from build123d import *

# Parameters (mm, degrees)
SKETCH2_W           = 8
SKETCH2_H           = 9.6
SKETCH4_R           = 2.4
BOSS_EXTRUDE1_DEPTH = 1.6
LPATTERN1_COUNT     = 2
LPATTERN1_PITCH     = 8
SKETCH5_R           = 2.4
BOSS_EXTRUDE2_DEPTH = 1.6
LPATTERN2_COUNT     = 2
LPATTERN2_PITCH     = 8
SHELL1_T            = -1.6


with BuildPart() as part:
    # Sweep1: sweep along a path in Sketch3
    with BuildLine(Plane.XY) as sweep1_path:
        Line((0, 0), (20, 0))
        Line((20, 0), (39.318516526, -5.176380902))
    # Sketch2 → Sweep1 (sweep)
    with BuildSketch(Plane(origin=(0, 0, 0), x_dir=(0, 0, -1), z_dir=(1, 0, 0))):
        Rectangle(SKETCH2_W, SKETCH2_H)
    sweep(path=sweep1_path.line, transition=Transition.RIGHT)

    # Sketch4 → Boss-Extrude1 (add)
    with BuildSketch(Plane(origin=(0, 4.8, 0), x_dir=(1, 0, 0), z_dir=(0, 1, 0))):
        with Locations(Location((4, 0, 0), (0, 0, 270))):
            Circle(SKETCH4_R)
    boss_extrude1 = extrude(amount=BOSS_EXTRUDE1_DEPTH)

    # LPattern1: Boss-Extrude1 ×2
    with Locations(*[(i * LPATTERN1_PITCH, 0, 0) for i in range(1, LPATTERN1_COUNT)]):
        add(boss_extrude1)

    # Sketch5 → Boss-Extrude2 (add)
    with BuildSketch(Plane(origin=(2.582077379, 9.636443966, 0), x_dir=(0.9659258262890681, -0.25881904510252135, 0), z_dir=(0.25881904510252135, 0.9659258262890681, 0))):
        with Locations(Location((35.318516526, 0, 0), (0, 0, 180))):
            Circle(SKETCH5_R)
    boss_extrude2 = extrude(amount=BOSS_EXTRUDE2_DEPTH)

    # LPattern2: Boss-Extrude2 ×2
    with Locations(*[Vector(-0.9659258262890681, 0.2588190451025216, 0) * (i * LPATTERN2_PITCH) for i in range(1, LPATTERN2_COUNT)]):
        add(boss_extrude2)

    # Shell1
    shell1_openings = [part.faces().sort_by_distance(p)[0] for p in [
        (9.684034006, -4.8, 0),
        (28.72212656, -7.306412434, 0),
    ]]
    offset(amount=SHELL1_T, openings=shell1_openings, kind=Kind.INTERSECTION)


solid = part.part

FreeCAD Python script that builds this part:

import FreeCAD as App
import Part
import Sketcher
Q = App.Units.Quantity


def faces_at(feature, points):
    """Names of the faces that lie closest to the given points."""
    faces = feature.Shape.Faces
    near = lambda p: min(range(len(faces)), key=lambda i: faces[i].distToShape(Part.Vertex(*p))[0])
    return sorted({f"Face{near(p) + 1}" for p in points})


def add_polygon(sketch, points):
    """Adds a closed chain of lines whose ends are joined by coincident constraints."""
    first, n = sketch.GeometryCount, len(points)
    for a, b in zip(points, points[1:] + points[:1]):
        sketch.addGeometry(Part.LineSegment(App.Vector(*a, 0), App.Vector(*b, 0)), False)
    for i in range(n):
        sketch.addConstraint(Sketcher.Constraint("Coincident", first + i, 2, first + (i + 1) % n, 1))

doc = App.newDocument("Part")
body = doc.addObject("PartDesign::Body", "Body")

sketch1 = body.newObject("Sketcher::SketchObject", "Sketch")
sketch1.AttachmentSupport = (doc.getObject("YZ_Plane"), [""])
sketch1.MapMode = "FlatFace"
add_polygon(sketch1, [(5, 4), (-5, 4), (-5, -4), (5, -4)])
sketch1.addConstraint(Sketcher.Constraint("Horizontal", 0))
sketch1.addConstraint(Sketcher.Constraint("Vertical", 1))
sketch1.addConstraint(Sketcher.Constraint("Horizontal", 2))
sketch1.addConstraint(Sketcher.Constraint("Vertical", 3))
sketch1.addConstraint(Sketcher.Constraint("Symmetric", 0, 2, 2, 2, -1, 1))
sketch1.addConstraint(Sketcher.Constraint("DistanceY", 1, 2, 1, 1, Q("8 mm")))
sketch1.addConstraint(Sketcher.Constraint("DistanceX", 0, 2, 0, 1, Q("9.6 mm")))

sketch2 = body.newObject("Sketcher::SketchObject", "Sketch001")
sketch2.AttachmentSupport = (doc.getObject("XY_Plane"), [""])
sketch2.MapMode = "FlatFace"
sketch2.addGeometry(Part.LineSegment(App.Vector(0, 0, 0), App.Vector(20, 0, 0)), False)
sketch2.addGeometry(Part.LineSegment(App.Vector(20, 0, 0), App.Vector(39, -5, 0)), False)
sketch2.addConstraint(Sketcher.Constraint("Coincident", 0, 2, 1, 1))
sketch2.addConstraint(Sketcher.Constraint("Horizontal", 0))
sketch2.addConstraint(Sketcher.Constraint("Coincident", 0, 1, -1, 1))
sketch2.addConstraint(Sketcher.Constraint("DistanceX", 0, 1, 0, 2, Q("20 mm")))
sketch2.addConstraint(Sketcher.Constraint("Angle", 1, Q("-15 deg")))
sketch2.addConstraint(Sketcher.Constraint("Distance", 1, Q("20 mm")))
doc.recompute()

additivepipe = body.newObject("PartDesign::AdditivePipe", "AdditivePipe")
additivepipe.Profile = sketch1
additivepipe.Spine = (sketch2, ["Edge1", "Edge2"])
additivepipe.Transition = "Right corner"

sketch3 = body.newObject("Sketcher::SketchObject", "Sketch002")
sketch3.AttachmentSupport = (doc.getObject("XZ_Plane"), [""])
sketch3.MapMode = "FlatFace"
sketch3.AttachmentOffset = App.Placement(App.Vector(0, 0, -4.8), App.Rotation())
sketch3.addGeometry(Part.Circle(App.Vector(4, 0, 0), App.Vector(0, 0, 1), 2.4), False)
sketch3.addConstraint(Sketcher.Constraint("PointOnObject", 0, 3, -1))
sketch3.addConstraint(Sketcher.Constraint("Diameter", 0, Q("4.8 mm")))
sketch3.addConstraint(Sketcher.Constraint("DistanceX", -1, 1, 0, 3, Q("4 mm")))
pad1 = body.newObject("PartDesign::Pad", "Pad")
pad1.Profile = sketch3
pad1.Length = 1.6
pad1.Reversed = True
doc.recompute()

linearpattern = body.newObject("PartDesign::LinearPattern", "LinearPattern")
linearpattern.Originals = [pad1]
linearpattern.Direction = (doc.getObject("X_Axis"), [""])
linearpattern.Mode = "offset"
linearpattern.Offset = 8
linearpattern.Occurrences = 2
body.Tip = linearpattern

sketch4 = body.newObject("Sketcher::SketchObject", "Sketch003")
sketch4.Placement = App.Placement(App.Vector(2.582077, 9.636444, 0), App.Rotation(App.Vector(0.965925826, -0.258819045, 0), App.Vector(0, 0, -0.999999999), App.Vector(0.258819045, 0.965925826, 0), "ZXY"))
sketch4.addGeometry(Part.Circle(App.Vector(35.3, 0, 0), App.Vector(0, 0, 1), 2.4), False)
sketch4.addConstraint(Sketcher.Constraint("PointOnObject", 0, 3, -1))
sketch4.addConstraint(Sketcher.Constraint("Diameter", 0, Q("4.8 mm")))
sketch4.addConstraint(Sketcher.Constraint("DistanceX", -1, 1, 0, 3, Q("35.318517 mm")))
pad2 = body.newObject("PartDesign::Pad", "Pad001")
pad2.Profile = sketch4
pad2.Length = 1.6
doc.recompute()

datumline = body.newObject("PartDesign::Line", "DatumLine")
datumline.Placement = App.Placement(App.Vector(0, 0, 0), App.Rotation(App.Vector(0, 0, 1), App.Vector(-0.965925826, 0.258819045, 0)))
linearpattern2 = body.newObject("PartDesign::LinearPattern", "LinearPattern001")
linearpattern2.Originals = [pad2]
linearpattern2.Direction = (datumline, [""])
linearpattern2.Mode = "offset"
linearpattern2.Offset = 8
linearpattern2.Occurrences = 2
body.Tip = linearpattern2
doc.recompute()

thickness = body.newObject("PartDesign::Thickness", "Thickness")
thickness.Base = (linearpattern2, faces_at(linearpattern2, [(9.684, -4.8, 0), (28.722, -7.306, 0)]))
thickness.Value = 1.6
thickness.Reversed = True
thickness.Join = "Intersection"

doc.recompute()
